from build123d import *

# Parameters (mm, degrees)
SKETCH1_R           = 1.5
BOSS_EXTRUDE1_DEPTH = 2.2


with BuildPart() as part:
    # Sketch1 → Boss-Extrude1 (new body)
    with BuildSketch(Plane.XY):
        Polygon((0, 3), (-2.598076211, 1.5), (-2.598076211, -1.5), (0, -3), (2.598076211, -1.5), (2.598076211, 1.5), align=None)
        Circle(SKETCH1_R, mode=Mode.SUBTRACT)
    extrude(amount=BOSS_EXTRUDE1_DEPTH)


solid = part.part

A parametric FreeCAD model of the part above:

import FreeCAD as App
import Part
import Sketcher

V = App.Vector
Q = App.Units.Quantity


def add_polygon(sketch, points):
    """Adds a closed chain of lines whose ends are joined by coincident constraints."""
    first, n = sketch.GeometryCount, len(points)
    for a, b in zip(points, points[1:] + points[:1]):
        sketch.addGeometry(Part.LineSegment(App.Vector(*a, 0), App.Vector(*b, 0)), False)
    for i in range(n):
        sketch.addConstraint(Sketcher.Constraint("Coincident", first + i, 2, first + (i + 1) % n, 1))

doc = App.newDocument("Part")
body = doc.addObject("PartDesign::Body", "Body")

# Sketch on XY plane
sketch1 = body.newObject("Sketcher::SketchObject", "Sketch")
sketch1.AttachmentSupport = (doc.getObject("XY_Plane"), [""])
sketch1.MapMode = "FlatFace"
add_polygon(sketch1, [(0, 3), (-2.598076, 1.5), (-2.598076, -1.5), (0, -3), (2.598076, -1.5), (2.598076, 1.5)])  # lines 0-5
sketch1.addGeometry(Part.Circle(V(0, 0, 0), V(0, 0, 1), 1.5), False)  # 6
sketch1.addConstraint(Sketcher.Constraint("Vertical", 1))
sketch1.addConstraint(Sketcher.Constraint("Vertical", 4))
sketch1.addConstraint(Sketcher.Constraint("Coincident", 6, 3, -1, 1))
sketch1.addConstraint(Sketcher.Constraint("Symmetric", 0, 2, 3, 2, -1, 1))
sketch1.addConstraint(Sketcher.Constraint("Symmetric", 2, 2, 5, 2, -1, 1))
sketch1.addConstraint(Sketcher.Constraint("PointOnObject", 2, 2, -2))
sketch1.addConstraint(Sketcher.Constraint("Parallel", 2, 5))
sketch1.addConstraint(Sketcher.Constraint("Horizontal", 1, 2, 3, 2))
sketch1.addConstraint(Sketcher.Constraint("Diameter", 6, 3.0))
sketch1.addConstraint(Sketcher.Constraint("DistanceY", 1, 2, 1, 1, 3.0))
sketch1.addConstraint(Sketcher.Constraint("Angle", 0, Q("-150 deg")))
sketch1.addConstraint(Sketcher.Constraint("Distance", 0, 3.0))
pad1 = body.newObject("PartDesign::Pad", "Pad")
pad1.Profile = sketch1
pad1.Length = 2.2

doc.recompute()
